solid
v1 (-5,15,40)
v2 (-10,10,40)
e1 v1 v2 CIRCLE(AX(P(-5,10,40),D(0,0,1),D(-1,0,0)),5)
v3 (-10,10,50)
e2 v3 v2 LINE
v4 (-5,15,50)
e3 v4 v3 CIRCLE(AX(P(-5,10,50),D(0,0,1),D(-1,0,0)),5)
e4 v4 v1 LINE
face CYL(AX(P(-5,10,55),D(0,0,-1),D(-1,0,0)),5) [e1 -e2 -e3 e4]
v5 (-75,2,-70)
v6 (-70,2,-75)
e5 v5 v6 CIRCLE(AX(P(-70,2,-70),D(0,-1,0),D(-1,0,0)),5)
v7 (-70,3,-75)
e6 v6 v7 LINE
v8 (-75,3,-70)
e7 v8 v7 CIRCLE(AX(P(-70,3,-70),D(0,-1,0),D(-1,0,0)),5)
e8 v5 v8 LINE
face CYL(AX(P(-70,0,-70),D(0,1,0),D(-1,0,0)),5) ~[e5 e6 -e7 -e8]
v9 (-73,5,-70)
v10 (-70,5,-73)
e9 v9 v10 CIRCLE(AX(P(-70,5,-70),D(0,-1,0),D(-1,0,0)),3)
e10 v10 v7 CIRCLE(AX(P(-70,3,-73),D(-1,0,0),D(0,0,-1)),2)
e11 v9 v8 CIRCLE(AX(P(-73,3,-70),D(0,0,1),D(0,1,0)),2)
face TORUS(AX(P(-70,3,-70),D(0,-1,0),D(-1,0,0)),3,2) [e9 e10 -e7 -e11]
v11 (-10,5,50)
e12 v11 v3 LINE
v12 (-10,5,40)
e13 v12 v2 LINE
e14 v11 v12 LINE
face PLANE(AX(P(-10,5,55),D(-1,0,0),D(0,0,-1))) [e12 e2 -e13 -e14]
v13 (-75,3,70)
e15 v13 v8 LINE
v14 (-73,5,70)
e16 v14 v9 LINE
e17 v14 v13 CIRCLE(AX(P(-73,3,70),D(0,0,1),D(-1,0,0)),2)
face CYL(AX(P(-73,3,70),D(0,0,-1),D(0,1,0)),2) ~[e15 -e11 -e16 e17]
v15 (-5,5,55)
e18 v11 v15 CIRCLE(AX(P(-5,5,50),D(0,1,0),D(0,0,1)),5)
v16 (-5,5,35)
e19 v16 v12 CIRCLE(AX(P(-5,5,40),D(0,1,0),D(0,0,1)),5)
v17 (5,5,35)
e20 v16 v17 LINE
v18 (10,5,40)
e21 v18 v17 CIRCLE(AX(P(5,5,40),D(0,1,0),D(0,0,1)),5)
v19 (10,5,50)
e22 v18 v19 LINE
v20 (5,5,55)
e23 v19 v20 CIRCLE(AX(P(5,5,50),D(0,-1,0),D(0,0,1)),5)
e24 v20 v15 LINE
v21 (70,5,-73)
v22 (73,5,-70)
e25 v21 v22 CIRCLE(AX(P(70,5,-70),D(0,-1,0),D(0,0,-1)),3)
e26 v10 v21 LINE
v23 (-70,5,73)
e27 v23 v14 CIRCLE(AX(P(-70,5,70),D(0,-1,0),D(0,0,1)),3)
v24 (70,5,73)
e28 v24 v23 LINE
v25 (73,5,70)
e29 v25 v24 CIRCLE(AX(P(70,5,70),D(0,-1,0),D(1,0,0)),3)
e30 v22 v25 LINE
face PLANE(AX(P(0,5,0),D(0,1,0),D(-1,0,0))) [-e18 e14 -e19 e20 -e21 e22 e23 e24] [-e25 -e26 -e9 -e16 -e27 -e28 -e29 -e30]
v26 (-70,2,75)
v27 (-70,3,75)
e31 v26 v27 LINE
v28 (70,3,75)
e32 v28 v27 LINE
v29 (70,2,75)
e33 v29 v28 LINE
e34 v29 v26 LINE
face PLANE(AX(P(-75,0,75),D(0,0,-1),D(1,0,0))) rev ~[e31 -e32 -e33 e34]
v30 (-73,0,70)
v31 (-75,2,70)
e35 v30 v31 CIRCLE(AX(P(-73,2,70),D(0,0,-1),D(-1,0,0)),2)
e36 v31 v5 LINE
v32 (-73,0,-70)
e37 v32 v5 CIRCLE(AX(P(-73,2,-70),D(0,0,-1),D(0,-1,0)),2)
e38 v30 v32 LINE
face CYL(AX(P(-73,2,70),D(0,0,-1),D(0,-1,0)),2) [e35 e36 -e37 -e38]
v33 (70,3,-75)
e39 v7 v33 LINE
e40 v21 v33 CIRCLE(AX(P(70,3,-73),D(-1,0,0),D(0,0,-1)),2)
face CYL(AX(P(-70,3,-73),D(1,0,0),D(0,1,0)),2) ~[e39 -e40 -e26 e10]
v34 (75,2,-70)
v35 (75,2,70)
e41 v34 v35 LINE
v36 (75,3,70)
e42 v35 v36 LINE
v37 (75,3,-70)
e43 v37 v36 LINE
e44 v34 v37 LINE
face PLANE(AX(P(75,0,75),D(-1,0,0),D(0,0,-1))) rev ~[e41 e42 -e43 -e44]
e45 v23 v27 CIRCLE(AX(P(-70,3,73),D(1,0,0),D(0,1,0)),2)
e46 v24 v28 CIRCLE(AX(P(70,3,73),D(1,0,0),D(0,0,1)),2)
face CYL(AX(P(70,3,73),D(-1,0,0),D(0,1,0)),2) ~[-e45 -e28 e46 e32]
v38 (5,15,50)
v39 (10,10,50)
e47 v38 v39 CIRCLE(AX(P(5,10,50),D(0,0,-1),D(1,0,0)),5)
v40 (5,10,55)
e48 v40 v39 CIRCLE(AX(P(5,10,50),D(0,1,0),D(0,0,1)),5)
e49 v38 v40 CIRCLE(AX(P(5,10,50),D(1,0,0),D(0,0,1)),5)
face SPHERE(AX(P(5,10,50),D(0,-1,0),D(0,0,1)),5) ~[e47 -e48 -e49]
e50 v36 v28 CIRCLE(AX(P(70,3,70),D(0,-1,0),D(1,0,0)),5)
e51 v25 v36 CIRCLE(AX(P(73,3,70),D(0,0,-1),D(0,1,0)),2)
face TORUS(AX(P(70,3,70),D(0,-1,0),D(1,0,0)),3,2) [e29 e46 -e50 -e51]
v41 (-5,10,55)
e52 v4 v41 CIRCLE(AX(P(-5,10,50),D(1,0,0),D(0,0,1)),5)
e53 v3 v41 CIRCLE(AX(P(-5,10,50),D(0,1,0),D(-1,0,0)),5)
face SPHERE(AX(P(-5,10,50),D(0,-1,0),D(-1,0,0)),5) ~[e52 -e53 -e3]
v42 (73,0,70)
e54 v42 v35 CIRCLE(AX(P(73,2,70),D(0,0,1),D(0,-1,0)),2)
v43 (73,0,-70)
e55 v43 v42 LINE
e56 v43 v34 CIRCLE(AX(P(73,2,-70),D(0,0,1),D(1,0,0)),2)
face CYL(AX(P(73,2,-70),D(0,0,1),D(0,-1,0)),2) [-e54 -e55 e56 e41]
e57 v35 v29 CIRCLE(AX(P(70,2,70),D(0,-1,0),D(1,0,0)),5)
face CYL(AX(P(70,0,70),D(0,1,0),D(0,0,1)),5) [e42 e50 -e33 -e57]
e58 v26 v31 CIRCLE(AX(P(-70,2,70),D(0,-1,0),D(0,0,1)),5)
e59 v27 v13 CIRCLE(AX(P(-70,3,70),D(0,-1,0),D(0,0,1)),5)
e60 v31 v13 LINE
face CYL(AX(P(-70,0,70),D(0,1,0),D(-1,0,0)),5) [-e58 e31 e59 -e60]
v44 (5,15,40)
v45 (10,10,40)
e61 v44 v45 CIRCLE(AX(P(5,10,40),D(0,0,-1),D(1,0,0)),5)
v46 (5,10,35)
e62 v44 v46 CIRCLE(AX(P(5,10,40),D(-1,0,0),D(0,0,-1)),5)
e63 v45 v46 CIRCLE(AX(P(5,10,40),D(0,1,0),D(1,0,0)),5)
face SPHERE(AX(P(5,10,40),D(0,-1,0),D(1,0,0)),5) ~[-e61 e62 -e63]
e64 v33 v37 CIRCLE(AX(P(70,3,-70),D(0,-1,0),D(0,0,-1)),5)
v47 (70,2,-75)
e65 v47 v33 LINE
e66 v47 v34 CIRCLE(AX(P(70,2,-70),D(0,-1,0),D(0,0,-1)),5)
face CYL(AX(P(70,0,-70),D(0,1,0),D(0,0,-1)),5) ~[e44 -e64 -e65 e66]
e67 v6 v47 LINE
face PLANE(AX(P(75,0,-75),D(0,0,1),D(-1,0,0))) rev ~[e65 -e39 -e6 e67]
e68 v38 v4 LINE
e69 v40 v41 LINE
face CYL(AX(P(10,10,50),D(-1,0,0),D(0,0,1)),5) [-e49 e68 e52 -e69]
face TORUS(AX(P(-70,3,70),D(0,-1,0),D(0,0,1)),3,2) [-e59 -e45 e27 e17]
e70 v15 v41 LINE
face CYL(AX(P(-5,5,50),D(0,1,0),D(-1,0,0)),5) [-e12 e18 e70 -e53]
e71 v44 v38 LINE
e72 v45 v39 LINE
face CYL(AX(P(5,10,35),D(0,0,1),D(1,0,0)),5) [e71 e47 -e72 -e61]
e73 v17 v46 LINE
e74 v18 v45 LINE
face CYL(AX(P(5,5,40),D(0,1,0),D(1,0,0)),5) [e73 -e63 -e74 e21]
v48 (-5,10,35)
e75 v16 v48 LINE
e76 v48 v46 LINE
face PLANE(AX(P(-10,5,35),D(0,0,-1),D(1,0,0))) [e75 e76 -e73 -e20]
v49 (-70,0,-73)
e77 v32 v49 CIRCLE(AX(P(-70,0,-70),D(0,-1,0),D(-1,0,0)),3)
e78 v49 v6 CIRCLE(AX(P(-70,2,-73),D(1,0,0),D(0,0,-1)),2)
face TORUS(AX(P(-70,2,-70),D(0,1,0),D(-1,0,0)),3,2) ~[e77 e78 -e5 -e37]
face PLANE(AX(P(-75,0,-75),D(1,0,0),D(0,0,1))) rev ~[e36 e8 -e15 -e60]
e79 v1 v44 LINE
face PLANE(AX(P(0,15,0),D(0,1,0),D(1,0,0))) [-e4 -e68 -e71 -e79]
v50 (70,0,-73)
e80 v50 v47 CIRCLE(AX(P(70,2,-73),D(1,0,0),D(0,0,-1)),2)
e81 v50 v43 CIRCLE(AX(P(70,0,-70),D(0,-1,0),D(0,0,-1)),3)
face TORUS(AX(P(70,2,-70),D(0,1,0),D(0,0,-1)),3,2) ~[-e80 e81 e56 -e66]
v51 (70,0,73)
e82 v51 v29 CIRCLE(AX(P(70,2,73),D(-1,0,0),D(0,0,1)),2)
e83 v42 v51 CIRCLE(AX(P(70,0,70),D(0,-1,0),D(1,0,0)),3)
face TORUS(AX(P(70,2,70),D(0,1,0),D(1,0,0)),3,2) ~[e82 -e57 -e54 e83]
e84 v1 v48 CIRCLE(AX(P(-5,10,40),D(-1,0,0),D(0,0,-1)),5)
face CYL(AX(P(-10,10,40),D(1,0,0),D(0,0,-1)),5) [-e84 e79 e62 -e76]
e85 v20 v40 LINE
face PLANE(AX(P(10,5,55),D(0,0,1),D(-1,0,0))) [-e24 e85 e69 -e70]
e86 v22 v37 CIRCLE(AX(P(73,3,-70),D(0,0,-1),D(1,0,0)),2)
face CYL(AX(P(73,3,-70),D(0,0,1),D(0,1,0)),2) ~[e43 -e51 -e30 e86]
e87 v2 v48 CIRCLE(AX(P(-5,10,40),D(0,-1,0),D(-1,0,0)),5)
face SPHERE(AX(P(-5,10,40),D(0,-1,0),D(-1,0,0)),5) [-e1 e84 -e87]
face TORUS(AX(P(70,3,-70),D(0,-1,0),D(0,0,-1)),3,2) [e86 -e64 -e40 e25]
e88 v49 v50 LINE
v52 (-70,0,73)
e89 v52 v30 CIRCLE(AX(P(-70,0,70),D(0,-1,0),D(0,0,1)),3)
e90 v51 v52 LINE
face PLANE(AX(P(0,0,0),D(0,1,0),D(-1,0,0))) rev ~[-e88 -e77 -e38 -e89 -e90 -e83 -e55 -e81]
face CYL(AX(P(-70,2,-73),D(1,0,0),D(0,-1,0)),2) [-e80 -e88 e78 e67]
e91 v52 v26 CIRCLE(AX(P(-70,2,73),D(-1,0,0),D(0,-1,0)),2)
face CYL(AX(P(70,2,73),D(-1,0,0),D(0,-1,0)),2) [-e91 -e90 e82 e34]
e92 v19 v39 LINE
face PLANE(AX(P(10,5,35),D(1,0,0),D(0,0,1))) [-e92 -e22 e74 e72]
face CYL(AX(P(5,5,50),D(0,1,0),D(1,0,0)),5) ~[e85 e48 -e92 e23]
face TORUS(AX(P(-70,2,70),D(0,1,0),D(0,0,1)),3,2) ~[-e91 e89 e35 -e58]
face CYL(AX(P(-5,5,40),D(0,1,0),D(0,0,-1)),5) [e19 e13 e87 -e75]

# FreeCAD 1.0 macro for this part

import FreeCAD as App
import Part
import Sketcher

V = App.Vector


def edges_at(feature, points):
    """Names of the edges that pass closest to the given points."""
    edges = feature.Shape.Edges
    near = lambda p: min(range(len(edges)), key=lambda i: edges[i].distToShape(Part.Vertex(*p))[0])
    return sorted({f"Edge{near(p) + 1}" for p in points})

doc = App.newDocument("Part")
body = doc.addObject("PartDesign::Body", "Body")

# Sketch on XZ plane
sketch1 = body.newObject("Sketcher::SketchObject", "Sketch")
sketch1.AttachmentSupport = (doc.getObject("XZ_Plane"), [""])
sketch1.MapMode = "FlatFace"
sketch1.addGeometry([
    Part.LineSegment(V(-75, -75, 0), V(-75, 75, 0)),
    Part.LineSegment(V(-75, 75, 0), V(75, 75, 0)),
    Part.LineSegment(V(75, 75, 0), V(75, -75, 0)),
    Part.LineSegment(V(75, -75, 0), V(-75, -75, 0)),
], False)
sketch1.addConstraint([
    Sketcher.Constraint("Coincident", 0, 2, 1, 1),
    Sketcher.Constraint("Coincident", 1, 2, 2, 1),
    Sketcher.Constraint("Coincident", 2, 2, 3, 1),
    Sketcher.Constraint("Coincident", 3, 2, 0, 1),
    Sketcher.Constraint("Vertical", 0),
    Sketcher.Constraint("Horizontal", 1),
    Sketcher.Constraint("Vertical", 2),
    Sketcher.Constraint("Horizontal", 3),
    Sketcher.Constraint("Symmetric", 0, 2, 2, 2, -1, 1),
    Sketcher.Constraint("Equal", 3, 0),
    Sketcher.Constraint("DistanceX", 1, 1, 1, 2, 150.0),
])
pad1 = body.newObject("PartDesign::Pad", "Pad")
pad1.Profile = sketch1
pad1.Length = 5
pad1.Reversed = True

# Sketch on XZ plane
sketch2 = body.newObject("Sketcher::SketchObject", "Sketch001")
sketch2.AttachmentSupport = (doc.getObject("XZ_Plane"), [""])
sketch2.MapMode = "FlatFace"
sketch2.AttachmentOffset = App.Placement(V(0, 0, -5), App.Rotation())
sketch2.addGeometry([
    Part.LineSegment(V(-10, 55, 0), V(10, 55, 0)),
    Part.LineSegment(V(10, 55, 0), V(10, 35, 0)),
    Part.LineSegment(V(10, 35, 0), V(-10, 35, 0)),
    Part.LineSegment(V(-10, 35, 0), V(-10, 55, 0)),
], False)
sketch2.addConstraint([
    Sketcher.Constraint("Coincident", 0, 2, 1, 1),
    Sketcher.Constraint("Coincident", 1, 2, 2, 1),
    Sketcher.Constraint("Coincident", 2, 2, 3, 1),
    Sketcher.Constraint("Coincident", 3, 2, 0, 1),
    Sketcher.Constraint("Horizontal", 0),
    Sketcher.Constraint("Vertical", 1),
    Sketcher.Constraint("Horizontal", 2),
    Sketcher.Constraint("Vertical", 3),
    Sketcher.Constraint("Equal", 2, 1),
    Sketcher.Constraint("DistanceX", 0, 1, 0, 2, 20.0),
    Sketcher.Constraint("DistanceX", -1, 1, 0, 2, 10.0),
    Sketcher.Constraint("DistanceY", -1, 1, 0, 2, 55.0),
])
pad2 = body.newObject("PartDesign::Pad", "Pad001")
pad2.Profile = sketch2
pad2.Length = 10
pad2.Reversed = True
doc.recompute()

fillet = body.newObject("PartDesign::Fillet", "Fillet")
fillet.Base = (pad2, edges_at(pad2, [
    (75, 2.5, 75),
    (75, 2.5, -75),
    (-75, 2.5, 75),
    (-75, 2.5, -75),
    (10, 10, 55),
    (10, 10, 35),
    (-10, 10, 35),
    (-10, 10, 55),
    (-10, 15, 45),
    (0, 15, 55),
    (10, 15, 45),
    (0, 15, 35),
]))
fillet.Radius = 5
doc.recompute()

fillet2 = body.newObject("PartDesign::Fillet", "Fillet001")
fillet2.Base = (fillet, edges_at(fillet, [
    (73.535, 5, -73.535),
    (0, 5, -75),
    (-73.535, 5, -73.535),
    (-75, 5, 0),
    (-73.535, 5, 73.535),
    (0, 5, 75),
    (73.535, 5, 73.535),
    (75, 5, 0),
    (73.535, 0, -73.535),
    (0, 0, -75),
    (-73.535, 0, -73.535),
    (-75, 0, 0),
    (-73.535, 0, 73.535),
    (0, 0, 75),
    (73.535, 0, 73.535),
    (75, 0, 0),
]))
fillet2.Radius = 2

doc.recompute()
